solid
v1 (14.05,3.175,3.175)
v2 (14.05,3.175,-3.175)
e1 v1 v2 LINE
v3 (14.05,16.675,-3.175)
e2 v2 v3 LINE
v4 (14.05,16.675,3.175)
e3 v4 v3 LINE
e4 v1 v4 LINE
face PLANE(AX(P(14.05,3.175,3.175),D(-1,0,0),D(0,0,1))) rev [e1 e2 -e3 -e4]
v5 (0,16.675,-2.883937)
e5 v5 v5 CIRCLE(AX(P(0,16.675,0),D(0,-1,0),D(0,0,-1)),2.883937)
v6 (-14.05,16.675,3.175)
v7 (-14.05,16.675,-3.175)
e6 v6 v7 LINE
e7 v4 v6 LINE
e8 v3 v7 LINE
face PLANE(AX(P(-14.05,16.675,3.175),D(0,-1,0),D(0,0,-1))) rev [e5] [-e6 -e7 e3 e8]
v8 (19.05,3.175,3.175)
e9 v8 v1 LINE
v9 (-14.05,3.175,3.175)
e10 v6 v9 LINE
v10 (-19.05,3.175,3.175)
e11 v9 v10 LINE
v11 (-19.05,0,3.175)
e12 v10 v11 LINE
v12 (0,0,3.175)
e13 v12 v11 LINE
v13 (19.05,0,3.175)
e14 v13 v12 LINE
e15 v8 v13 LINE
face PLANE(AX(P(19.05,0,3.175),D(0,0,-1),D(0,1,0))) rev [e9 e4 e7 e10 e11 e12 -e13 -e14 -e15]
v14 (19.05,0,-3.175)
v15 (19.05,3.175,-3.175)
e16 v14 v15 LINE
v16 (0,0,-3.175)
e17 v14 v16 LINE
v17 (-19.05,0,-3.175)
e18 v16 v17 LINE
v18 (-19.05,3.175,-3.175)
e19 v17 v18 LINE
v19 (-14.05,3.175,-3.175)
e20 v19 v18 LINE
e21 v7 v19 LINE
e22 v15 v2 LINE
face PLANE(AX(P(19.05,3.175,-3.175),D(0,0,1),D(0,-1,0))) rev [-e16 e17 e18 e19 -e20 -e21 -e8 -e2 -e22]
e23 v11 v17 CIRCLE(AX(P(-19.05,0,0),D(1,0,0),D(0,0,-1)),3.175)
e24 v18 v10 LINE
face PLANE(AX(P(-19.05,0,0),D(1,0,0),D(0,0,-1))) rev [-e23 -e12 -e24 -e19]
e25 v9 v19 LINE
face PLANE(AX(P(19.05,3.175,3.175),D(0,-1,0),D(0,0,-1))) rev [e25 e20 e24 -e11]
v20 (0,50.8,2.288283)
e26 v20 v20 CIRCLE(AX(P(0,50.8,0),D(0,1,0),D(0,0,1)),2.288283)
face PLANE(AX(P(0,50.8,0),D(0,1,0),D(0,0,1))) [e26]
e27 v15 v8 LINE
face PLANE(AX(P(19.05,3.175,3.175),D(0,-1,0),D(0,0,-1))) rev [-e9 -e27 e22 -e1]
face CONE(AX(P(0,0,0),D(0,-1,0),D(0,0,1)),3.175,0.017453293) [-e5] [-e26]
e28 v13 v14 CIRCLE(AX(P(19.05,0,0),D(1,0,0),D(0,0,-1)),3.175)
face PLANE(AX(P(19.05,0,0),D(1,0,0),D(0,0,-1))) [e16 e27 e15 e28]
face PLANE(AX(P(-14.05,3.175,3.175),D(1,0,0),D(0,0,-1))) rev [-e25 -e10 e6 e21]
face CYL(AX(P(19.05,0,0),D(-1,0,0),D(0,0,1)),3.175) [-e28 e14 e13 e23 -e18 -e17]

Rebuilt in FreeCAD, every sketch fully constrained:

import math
import FreeCAD as App
import Part
import Sketcher

V = App.Vector
Q = App.Units.Quantity


def add_polygon(sketch, points):
    """Adds a closed chain of lines whose ends are joined by coincident constraints."""
    first, n = sketch.GeometryCount, len(points)
    for a, b in zip(points, points[1:] + points[:1]):
        sketch.addGeometry(Part.LineSegment(App.Vector(*a, 0), App.Vector(*b, 0)), False)
    for i in range(n):
        sketch.addConstraint(Sketcher.Constraint("Coincident", first + i, 2, first + (i + 1) % n, 1))

doc = App.newDocument("Part")
body = doc.addObject("PartDesign::Body", "Body")

# Sketch on YZ plane
sketch1 = body.newObject("Sketcher::SketchObject", "Sketch")
sketch1.AttachmentSupport = (doc.getObject("YZ_Plane"), [""])
sketch1.MapMode = "FlatFace"
sketch1.addGeometry([
    Part.LineSegment(V(3.2, 3.2, 0), V(0, 3.2, 0)),
    Part.ArcOfCircle(Part.Circle(V(0, 0, 0), V(0, 0, 1), 3.2), math.radians(90), math.radians(270)),
    Part.LineSegment(V(0, -3.2, 0), V(3.2, -3.2, 0)),
    Part.LineSegment(V(3.2, -3.2, 0), V(3.2, 3.2, 0)),
], False)
sketch1.addConstraint([
    Sketcher.Constraint("Tangent", 0, 2, 1, 1),
    Sketcher.Constraint("Tangent", 1, 2, 2, 1),
    Sketcher.Constraint("Coincident", 2, 2, 3, 1),
    Sketcher.Constraint("Coincident", 3, 2, 0, 1),
    Sketcher.Constraint("Horizontal", 0),
    Sketcher.Constraint("Horizontal", 2),
    Sketcher.Constraint("Vertical", 3),
    Sketcher.Constraint("Coincident", 1, 3, -1, 1),
    Sketcher.Constraint("Radius", 1, Q("0.125 in")),
    Sketcher.Constraint("DistanceX", 0, 2, 0, 1, Q("0.125 in")),
])
pad1 = body.newObject("PartDesign::Pad", "Pad")
pad1.Profile = sketch1
pad1.Length = Q("1.5 in")
pad1.Midplane = True

# Sketch on XZ plane
sketch2 = body.newObject("Sketcher::SketchObject", "Sketch001")
sketch2.AttachmentSupport = (doc.getObject("XZ_Plane"), [""])
sketch2.MapMode = "FlatFace"
sketch2.addGeometry(Part.Circle(V(0, 0, 0), V(0, 0, 1), 3.2), False)
sketch2.addConstraint([
    Sketcher.Constraint("Coincident", 0, 3, -1, 1),
    Sketcher.Constraint("Diameter", 0, Q("0.25 in")),
])
pad2 = body.newObject("PartDesign::Pad", "Pad001")
pad2.Profile = sketch2
pad2.Length = Q("2 in")
pad2.Reversed = True
pad2.TaperAngle = -1

# Sketch on XY plane
sketch3 = body.newObject("Sketcher::SketchObject", "Sketch002")
sketch3.AttachmentSupport = (doc.getObject("XY_Plane"), [""])
sketch3.MapMode = "FlatFace"
add_polygon(sketch3, [(-14, 17), (-14, 3), (14, 3), (14, 17)])  # lines 0-3
sketch3.addConstraint([
    Sketcher.Constraint("Vertical", 0),
    Sketcher.Constraint("Horizontal", 1),
    Sketcher.Constraint("Vertical", 2),
    Sketcher.Constraint("Horizontal", 3),
    Sketcher.Constraint("DistanceY", -1, 1, 0, 2, Q("0.125 in")),
    Sketcher.Constraint("DistanceX", 1, 1, 1, 2, 28.1),
    Sketcher.Constraint("DistanceY", 0, 2, 0, 1, 13.5),
    Sketcher.Constraint("DistanceX", 0, 2, -1, 1, 14.05),
])
pad3 = body.newObject("PartDesign::Pad", "Pad002")
pad3.Profile = sketch3
pad3.Length = Q("0.25 in")
pad3.Midplane = True

doc.recompute()
